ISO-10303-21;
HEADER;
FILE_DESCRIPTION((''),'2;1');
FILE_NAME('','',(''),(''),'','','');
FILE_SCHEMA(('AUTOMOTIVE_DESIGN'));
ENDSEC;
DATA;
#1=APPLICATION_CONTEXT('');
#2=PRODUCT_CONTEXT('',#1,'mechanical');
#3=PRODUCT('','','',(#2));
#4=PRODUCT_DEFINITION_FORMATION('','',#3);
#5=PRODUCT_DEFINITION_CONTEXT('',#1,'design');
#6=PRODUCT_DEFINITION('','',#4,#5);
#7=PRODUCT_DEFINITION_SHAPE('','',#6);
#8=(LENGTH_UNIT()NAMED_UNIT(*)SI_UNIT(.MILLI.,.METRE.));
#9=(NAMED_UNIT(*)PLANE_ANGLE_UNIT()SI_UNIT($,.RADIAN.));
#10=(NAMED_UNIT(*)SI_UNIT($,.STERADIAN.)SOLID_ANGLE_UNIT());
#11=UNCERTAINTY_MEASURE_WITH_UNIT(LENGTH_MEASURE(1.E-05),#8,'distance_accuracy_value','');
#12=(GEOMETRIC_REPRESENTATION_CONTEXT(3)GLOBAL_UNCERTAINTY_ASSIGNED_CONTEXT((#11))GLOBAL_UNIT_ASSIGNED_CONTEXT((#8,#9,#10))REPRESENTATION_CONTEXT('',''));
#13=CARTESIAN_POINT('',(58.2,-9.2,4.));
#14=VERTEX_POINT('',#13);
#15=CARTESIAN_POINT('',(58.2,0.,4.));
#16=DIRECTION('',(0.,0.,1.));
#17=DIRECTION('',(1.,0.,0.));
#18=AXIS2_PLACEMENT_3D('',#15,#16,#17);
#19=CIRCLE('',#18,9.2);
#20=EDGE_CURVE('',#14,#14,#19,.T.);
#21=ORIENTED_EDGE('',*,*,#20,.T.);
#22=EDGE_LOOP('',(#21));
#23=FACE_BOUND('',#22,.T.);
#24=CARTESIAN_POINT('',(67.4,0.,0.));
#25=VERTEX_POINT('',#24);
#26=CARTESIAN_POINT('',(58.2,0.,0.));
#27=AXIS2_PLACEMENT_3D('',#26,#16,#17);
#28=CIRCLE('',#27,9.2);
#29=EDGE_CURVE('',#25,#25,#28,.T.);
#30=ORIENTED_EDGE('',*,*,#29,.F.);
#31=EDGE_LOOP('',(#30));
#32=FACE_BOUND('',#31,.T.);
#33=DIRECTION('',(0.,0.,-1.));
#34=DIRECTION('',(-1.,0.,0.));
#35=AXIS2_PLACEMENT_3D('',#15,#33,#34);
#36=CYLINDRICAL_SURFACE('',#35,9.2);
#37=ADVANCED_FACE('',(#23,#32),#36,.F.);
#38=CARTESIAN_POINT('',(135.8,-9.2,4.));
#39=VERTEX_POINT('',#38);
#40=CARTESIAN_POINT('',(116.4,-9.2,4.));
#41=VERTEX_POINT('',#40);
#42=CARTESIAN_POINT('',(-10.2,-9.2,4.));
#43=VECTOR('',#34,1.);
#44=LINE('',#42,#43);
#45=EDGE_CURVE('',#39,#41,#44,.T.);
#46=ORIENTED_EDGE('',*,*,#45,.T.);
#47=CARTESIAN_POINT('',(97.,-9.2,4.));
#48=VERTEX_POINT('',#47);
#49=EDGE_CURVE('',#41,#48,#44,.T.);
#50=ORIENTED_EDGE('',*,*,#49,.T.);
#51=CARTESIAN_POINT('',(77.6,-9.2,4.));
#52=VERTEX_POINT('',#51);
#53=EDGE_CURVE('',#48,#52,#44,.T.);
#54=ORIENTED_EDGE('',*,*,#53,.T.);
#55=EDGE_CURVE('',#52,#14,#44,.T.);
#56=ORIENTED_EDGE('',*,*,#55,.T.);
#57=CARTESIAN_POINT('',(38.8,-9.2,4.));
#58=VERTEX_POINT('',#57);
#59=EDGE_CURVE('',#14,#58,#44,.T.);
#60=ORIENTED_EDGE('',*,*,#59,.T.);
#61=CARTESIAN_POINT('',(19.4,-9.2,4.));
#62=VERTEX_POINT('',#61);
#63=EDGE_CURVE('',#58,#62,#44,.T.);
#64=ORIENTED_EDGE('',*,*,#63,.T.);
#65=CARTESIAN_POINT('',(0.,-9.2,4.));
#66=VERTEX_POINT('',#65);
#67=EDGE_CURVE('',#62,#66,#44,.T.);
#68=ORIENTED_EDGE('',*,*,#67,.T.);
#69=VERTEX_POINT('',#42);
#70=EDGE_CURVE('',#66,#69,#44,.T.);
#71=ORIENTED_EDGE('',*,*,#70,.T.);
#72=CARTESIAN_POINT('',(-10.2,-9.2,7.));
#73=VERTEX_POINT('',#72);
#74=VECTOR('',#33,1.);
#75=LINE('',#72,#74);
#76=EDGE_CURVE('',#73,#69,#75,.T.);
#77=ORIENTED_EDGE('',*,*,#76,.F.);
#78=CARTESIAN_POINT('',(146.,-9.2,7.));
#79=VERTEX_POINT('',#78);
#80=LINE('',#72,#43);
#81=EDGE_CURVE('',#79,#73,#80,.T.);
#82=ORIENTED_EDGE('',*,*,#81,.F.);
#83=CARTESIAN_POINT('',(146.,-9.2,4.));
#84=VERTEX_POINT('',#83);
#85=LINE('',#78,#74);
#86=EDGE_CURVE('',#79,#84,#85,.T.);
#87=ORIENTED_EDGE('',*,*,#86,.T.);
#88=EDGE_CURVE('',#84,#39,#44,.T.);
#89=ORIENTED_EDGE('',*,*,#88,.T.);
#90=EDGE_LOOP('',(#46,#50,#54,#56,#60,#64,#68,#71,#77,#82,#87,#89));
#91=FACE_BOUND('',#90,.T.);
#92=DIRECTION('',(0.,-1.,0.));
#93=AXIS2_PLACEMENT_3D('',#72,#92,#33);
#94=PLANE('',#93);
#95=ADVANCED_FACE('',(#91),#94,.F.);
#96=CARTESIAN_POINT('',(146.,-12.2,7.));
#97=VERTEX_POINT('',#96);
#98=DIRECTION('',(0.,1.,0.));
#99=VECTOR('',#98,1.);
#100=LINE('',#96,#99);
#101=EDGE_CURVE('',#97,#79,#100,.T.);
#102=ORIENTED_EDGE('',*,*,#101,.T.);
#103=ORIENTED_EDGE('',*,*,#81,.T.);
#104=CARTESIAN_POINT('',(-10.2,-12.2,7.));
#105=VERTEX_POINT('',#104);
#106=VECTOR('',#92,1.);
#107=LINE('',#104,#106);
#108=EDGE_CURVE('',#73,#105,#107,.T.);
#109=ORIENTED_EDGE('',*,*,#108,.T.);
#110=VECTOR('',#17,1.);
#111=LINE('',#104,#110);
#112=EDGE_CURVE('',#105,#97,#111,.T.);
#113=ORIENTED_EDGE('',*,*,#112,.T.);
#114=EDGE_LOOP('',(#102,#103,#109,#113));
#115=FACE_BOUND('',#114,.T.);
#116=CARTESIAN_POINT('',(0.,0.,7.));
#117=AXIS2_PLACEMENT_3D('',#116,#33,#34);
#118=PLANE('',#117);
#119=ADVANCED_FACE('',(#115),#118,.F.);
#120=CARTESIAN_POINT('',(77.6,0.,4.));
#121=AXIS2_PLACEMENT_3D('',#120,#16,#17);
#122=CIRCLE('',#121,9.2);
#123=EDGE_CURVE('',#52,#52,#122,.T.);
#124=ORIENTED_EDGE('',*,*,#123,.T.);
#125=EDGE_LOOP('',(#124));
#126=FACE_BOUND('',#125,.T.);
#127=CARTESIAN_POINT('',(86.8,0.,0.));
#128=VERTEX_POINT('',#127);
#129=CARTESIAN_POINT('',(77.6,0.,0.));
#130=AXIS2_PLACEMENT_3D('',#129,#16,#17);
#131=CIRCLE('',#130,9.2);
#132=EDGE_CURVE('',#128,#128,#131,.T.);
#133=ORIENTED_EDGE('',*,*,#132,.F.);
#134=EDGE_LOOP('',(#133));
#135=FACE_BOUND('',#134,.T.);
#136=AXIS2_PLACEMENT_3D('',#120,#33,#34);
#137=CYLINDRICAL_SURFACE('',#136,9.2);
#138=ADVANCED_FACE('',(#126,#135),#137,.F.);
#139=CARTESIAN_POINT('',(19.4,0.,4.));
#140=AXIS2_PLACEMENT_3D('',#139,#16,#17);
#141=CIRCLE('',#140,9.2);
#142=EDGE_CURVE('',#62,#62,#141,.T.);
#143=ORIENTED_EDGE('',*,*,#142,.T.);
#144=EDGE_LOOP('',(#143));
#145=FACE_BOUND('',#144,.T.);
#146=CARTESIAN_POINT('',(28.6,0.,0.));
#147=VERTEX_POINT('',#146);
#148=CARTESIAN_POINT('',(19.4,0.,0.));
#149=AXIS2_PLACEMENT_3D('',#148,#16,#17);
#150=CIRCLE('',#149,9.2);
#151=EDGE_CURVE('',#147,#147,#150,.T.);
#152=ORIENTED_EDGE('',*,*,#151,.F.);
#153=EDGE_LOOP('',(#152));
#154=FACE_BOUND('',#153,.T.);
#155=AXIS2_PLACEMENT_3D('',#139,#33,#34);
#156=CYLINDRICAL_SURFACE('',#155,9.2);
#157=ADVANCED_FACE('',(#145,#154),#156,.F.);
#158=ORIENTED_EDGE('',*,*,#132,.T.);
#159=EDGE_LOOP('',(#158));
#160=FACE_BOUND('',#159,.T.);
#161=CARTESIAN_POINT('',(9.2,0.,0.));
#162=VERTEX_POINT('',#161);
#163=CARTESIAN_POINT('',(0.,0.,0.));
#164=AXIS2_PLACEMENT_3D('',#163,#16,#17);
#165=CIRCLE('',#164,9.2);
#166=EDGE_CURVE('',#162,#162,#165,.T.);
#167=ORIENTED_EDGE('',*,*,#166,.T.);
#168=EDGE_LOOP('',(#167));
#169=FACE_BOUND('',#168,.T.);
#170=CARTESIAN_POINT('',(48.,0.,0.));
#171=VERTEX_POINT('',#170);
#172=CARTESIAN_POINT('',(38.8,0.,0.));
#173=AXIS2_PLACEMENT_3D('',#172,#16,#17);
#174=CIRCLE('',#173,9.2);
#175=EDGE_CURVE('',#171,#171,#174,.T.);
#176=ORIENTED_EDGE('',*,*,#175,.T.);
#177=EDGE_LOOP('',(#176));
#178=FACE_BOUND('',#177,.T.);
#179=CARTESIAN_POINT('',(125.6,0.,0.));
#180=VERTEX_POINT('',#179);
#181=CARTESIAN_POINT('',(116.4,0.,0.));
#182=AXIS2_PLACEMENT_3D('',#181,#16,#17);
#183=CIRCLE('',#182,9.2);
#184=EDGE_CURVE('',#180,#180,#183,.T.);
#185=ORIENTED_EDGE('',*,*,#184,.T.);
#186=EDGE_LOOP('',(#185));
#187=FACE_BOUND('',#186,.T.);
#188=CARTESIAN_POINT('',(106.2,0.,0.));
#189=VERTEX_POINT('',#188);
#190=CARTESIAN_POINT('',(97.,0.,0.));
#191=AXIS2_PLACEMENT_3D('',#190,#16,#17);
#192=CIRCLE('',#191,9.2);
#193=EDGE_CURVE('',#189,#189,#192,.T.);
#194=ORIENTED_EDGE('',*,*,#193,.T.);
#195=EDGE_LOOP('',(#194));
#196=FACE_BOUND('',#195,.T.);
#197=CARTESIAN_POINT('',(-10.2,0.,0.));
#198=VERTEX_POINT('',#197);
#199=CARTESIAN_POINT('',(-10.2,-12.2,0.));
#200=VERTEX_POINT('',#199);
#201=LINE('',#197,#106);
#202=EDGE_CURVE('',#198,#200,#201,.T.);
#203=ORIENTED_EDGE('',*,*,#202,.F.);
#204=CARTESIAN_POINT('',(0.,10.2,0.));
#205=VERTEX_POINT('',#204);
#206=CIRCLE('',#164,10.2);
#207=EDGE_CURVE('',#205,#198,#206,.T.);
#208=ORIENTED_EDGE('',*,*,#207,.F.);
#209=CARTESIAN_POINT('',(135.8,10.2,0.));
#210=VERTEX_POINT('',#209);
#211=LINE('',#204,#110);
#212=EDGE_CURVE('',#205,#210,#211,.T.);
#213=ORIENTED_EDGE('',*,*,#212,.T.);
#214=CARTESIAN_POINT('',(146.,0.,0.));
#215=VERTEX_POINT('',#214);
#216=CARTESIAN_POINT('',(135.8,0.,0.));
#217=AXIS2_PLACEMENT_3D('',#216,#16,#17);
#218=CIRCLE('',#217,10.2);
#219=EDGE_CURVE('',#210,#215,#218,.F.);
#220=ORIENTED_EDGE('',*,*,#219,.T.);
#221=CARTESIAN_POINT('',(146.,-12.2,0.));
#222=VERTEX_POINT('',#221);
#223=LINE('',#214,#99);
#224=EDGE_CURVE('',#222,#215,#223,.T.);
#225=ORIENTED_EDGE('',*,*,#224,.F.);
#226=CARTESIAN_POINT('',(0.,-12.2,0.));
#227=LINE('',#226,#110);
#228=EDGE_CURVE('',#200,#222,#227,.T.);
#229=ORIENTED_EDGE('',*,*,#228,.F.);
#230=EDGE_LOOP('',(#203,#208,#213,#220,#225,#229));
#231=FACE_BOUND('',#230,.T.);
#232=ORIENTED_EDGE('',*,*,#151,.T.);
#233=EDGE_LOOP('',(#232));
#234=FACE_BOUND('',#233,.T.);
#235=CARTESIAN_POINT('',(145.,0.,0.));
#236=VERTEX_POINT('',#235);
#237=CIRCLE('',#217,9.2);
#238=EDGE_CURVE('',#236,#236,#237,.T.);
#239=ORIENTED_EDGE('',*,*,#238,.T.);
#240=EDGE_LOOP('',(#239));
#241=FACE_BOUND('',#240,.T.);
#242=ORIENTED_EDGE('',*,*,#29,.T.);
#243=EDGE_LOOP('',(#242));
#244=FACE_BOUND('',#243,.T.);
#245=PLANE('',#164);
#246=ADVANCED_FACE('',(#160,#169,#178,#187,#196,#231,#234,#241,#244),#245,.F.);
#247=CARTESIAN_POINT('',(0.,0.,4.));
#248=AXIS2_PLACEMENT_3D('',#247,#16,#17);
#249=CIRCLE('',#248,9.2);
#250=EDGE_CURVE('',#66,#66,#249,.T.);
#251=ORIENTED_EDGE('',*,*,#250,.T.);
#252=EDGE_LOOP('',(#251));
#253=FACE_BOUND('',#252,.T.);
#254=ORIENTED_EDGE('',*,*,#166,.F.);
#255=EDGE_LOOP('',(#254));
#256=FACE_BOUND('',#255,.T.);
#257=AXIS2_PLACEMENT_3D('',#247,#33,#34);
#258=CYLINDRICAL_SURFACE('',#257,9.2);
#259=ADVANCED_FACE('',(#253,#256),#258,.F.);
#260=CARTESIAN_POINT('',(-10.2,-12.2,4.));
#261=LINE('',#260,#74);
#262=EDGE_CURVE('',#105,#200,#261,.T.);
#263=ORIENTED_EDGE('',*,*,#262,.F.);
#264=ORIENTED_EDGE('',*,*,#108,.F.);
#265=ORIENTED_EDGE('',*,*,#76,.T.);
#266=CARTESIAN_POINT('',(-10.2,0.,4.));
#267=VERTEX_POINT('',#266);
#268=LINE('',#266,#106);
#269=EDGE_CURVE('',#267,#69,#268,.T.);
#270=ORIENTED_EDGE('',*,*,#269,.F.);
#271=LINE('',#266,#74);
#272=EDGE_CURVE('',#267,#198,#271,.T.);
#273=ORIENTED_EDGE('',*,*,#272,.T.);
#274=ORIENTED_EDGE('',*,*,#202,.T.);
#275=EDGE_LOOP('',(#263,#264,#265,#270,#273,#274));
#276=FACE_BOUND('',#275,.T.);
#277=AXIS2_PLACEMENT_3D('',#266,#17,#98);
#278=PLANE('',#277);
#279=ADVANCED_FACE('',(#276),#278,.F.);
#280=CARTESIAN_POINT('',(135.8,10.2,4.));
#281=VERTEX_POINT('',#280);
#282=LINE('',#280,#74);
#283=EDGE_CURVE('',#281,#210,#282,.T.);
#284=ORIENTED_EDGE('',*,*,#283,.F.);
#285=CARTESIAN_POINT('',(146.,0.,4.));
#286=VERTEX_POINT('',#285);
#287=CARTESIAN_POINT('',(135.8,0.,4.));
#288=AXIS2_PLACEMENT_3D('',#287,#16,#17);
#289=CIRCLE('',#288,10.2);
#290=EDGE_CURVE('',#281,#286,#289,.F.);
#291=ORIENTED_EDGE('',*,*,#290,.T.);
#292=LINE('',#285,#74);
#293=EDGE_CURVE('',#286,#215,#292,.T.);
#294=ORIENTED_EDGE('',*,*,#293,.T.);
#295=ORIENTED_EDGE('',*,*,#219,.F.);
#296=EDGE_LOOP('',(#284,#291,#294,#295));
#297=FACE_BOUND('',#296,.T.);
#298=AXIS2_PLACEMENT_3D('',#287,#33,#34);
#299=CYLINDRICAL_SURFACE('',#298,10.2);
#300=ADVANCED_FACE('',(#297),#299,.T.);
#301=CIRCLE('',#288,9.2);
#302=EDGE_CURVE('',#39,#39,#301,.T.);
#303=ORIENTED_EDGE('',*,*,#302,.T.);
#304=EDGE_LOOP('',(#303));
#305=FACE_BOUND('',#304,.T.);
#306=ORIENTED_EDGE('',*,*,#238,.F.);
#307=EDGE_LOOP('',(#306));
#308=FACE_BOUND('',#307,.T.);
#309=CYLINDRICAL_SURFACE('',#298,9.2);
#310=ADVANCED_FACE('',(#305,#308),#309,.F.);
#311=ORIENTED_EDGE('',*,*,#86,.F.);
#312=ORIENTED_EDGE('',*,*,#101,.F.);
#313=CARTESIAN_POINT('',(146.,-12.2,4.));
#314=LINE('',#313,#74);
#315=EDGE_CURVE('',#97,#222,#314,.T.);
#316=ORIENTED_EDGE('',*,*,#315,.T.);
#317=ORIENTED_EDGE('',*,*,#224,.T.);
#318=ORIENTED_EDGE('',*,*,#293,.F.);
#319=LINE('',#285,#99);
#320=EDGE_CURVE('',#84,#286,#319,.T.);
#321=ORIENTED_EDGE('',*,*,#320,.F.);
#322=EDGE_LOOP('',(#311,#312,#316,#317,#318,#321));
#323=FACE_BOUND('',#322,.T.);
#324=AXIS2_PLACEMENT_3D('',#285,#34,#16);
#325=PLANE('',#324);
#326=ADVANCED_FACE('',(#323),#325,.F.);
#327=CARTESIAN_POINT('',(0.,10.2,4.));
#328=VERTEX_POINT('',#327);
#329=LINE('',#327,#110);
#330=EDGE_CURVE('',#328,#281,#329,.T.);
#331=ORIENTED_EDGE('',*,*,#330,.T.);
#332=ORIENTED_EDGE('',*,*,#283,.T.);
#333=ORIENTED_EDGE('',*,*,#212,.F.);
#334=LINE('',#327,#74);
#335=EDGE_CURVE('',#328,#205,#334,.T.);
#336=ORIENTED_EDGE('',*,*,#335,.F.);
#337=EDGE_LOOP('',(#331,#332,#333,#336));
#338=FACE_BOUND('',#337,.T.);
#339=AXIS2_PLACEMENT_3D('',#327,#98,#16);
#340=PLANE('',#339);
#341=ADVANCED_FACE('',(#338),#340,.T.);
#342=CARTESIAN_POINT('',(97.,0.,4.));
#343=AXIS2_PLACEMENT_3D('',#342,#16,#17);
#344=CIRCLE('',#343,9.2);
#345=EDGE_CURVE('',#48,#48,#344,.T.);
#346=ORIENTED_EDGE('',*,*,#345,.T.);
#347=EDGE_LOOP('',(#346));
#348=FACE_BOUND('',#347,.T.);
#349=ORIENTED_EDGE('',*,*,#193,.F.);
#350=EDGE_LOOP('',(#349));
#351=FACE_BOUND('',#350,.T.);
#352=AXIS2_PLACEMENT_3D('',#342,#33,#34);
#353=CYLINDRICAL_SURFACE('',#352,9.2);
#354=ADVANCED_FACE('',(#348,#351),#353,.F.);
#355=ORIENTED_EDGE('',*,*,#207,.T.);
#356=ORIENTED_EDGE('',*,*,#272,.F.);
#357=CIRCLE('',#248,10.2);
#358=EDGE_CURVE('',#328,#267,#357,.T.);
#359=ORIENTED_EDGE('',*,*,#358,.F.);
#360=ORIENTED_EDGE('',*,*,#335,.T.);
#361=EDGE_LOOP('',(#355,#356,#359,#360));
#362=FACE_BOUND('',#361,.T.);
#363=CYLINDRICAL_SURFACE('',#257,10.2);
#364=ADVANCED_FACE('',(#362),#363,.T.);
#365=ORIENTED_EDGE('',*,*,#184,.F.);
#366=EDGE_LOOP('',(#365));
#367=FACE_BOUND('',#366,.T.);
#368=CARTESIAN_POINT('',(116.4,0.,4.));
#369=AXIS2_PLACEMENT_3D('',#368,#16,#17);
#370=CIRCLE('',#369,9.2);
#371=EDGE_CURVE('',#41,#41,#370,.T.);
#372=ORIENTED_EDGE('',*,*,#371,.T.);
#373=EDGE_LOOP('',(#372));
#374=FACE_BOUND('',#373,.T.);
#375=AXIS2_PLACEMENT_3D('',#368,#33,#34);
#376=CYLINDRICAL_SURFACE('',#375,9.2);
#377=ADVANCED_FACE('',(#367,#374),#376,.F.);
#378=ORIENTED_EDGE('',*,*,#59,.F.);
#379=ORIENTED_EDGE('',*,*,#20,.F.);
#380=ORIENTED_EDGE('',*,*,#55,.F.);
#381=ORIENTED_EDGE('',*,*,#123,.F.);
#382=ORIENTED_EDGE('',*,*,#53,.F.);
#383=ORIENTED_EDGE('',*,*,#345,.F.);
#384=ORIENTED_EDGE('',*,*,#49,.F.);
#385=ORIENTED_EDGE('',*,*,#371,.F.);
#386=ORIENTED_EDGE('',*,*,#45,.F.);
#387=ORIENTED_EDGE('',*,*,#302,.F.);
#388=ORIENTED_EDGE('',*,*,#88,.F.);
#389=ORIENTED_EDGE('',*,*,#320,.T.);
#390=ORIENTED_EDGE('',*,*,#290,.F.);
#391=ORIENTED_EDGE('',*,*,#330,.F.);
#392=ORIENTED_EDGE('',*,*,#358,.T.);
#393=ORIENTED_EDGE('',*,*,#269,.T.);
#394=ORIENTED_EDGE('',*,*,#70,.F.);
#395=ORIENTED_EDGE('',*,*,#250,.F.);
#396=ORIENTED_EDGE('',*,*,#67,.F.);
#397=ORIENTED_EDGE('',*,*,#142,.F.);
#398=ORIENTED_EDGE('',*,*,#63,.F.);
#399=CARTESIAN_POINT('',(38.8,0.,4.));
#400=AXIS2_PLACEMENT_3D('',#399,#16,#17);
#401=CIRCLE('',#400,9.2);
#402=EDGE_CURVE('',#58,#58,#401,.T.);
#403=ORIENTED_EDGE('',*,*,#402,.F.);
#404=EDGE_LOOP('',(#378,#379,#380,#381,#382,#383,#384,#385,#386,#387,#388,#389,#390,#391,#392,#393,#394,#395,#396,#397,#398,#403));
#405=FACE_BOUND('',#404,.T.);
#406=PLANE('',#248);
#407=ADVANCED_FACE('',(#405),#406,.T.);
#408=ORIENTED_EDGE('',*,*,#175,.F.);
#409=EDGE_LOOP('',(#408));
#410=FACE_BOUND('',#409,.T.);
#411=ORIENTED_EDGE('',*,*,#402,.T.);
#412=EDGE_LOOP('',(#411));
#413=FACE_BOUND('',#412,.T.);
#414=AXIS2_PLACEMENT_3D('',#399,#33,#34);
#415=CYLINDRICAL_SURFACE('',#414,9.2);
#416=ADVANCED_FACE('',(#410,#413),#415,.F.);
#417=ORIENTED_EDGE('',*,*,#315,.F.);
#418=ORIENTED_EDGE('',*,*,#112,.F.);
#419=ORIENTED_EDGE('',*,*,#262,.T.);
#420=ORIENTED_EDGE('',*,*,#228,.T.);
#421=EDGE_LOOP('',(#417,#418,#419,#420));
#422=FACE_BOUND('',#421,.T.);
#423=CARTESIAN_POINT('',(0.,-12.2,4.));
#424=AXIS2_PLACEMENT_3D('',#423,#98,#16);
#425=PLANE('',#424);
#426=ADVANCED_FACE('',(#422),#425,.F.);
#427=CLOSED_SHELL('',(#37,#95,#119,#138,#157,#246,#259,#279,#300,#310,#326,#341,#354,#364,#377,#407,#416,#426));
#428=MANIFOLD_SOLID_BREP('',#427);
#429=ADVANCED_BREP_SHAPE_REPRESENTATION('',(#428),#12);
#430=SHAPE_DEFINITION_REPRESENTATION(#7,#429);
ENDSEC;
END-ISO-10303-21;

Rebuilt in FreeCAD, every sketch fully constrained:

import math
import FreeCAD as App
import Part
import Sketcher
from FreeCAD import Vector
Q = App.Units.Quantity

doc = App.newDocument("Part")
body = doc.addObject("PartDesign::Body", "Body")

sketch1 = body.newObject("Sketcher::SketchObject", "Sketch")
sketch1.AttachmentSupport = (doc.getObject("XY_Plane"), [""])
sketch1.MapMode = "FlatFace"
sketch1.addGeometry([
    Part.LineSegment(Vector(136, 10, 0), Vector(0, 10, 0)),
    Part.ArcOfCircle(Part.Circle(Vector(0, 0, 0), Vector(0, 0, 1), 10), math.radians(90), math.radians(180)),
    Part.LineSegment(Vector(-10, 0, 0), Vector(-10, -12, 0)),
    Part.LineSegment(Vector(-10, -12, 0), Vector(146, -12, 0)),
    Part.LineSegment(Vector(146, -12, 0), Vector(146, 0, 0)),
    Part.ArcOfCircle(Part.Circle(Vector(136, 0, 0), Vector(0, 0, 1), 10), math.radians(0), math.radians(90)),
    Part.Circle(Vector(136, 0, 0), Vector(0, 0, 1), 9),
    Part.Circle(Vector(116, 0, 0), Vector(0, 0, 1), 9),
    Part.Circle(Vector(97, 0, 0), Vector(0, 0, 1), 9),
    Part.Circle(Vector(78, 0, 0), Vector(0, 0, 1), 9),
    Part.Circle(Vector(58, 0, 0), Vector(0, 0, 1), 9),
    Part.Circle(Vector(39, 0, 0), Vector(0, 0, 1), 9),
    Part.Circle(Vector(19, 0, 0), Vector(0, 0, 1), 9),
    Part.Circle(Vector(0, 0, 0), Vector(0, 0, 1), 9),
], False)
sketch1.addConstraint([
    Sketcher.Constraint("Tangent", 0, 2, 1, 1),
    Sketcher.Constraint("Tangent", 1, 2, 2, 1),
    Sketcher.Constraint("Coincident", 2, 2, 3, 1),
    Sketcher.Constraint("Coincident", 3, 2, 4, 1),
    Sketcher.Constraint("Tangent", 4, 2, 5, 1),
    Sketcher.Constraint("Tangent", 5, 2, 0, 1),
    Sketcher.Constraint("Horizontal", 0),
    Sketcher.Constraint("Vertical", 2),
    Sketcher.Constraint("Horizontal", 3),
    Sketcher.Constraint("Vertical", 4),
    Sketcher.Constraint("Coincident", 1, 3, -1, 1),
    Sketcher.Constraint("Coincident", 13, 3, -1, 1),
    Sketcher.Constraint("Coincident", 6, 3, 5, 3),
    Sketcher.Constraint("Equal", 1, 5),
    Sketcher.Constraint("Equal", 6, 7),
    Sketcher.Constraint("Equal", 7, 8),
    Sketcher.Constraint("Equal", 8, 9),
    Sketcher.Constraint("Equal", 9, 10),
    Sketcher.Constraint("Equal", 10, 11),
    Sketcher.Constraint("Equal", 11, 12),
    Sketcher.Constraint("Equal", 12, 13),
    Sketcher.Constraint("PointOnObject", 7, 3, -1),
    Sketcher.Constraint("PointOnObject", 8, 3, -1),
    Sketcher.Constraint("PointOnObject", 9, 3, -1),
    Sketcher.Constraint("PointOnObject", 10, 3, -1),
    Sketcher.Constraint("PointOnObject", 11, 3, -1),
    Sketcher.Constraint("PointOnObject", 12, 3, -1),
    Sketcher.Constraint("Diameter", 6, Q("18.4 mm")),
    Sketcher.Constraint("Radius", 1, Q("10.2 mm")),
    Sketcher.Constraint("DistanceX", 0, 2, 0, 1, Q("135.8 mm")),
    Sketcher.Constraint("DistanceY", 2, 2, 2, 1, Q("12.2 mm")),
    Sketcher.Constraint("DistanceX", -1, 1, 8, 3, Q("97 mm")),
    Sketcher.Constraint("DistanceX", 1, 2, 11, 3, Q("49 mm")),
    Sketcher.Constraint("DistanceX", -1, 1, 7, 3, Q("116.4 mm")),
    Sketcher.Constraint("DistanceX", -1, 1, 9, 3, Q("77.6 mm")),
    Sketcher.Constraint("DistanceX", -1, 1, 10, 3, Q("58.2 mm")),
    Sketcher.Constraint("DistanceX", -1, 1, 12, 3, Q("19.4 mm")),
])
pad1 = body.newObject("PartDesign::Pad", "Pad")
pad1.Profile = sketch1
pad1.Length = 4

sketch2 = body.newObject("Sketcher::SketchObject", "Sketch001")
sketch2.AttachmentSupport = (doc.getObject("XY_Plane"), [""])
sketch2.MapMode = "FlatFace"
sketch2.AttachmentOffset = App.Placement(Vector(0, 0, 4), App.Rotation())
sketch2.addGeometry([
    Part.LineSegment(Vector(-10.2, -9.2, 0), Vector(-10.2, -12.2, 0)),
    Part.LineSegment(Vector(-10.2, -12.2, 0), Vector(146, -12.2, 0)),
    Part.LineSegment(Vector(146, -12.2, 0), Vector(146, -9.2, 0)),
    Part.LineSegment(Vector(146, -9.2, 0), Vector(-10.2, -9.2, 0)),
], False)
sketch2.addConstraint([
    Sketcher.Constraint("Coincident", 0, 2, 1, 1),
    Sketcher.Constraint("Coincident", 1, 2, 2, 1),
    Sketcher.Constraint("Coincident", 2, 2, 3, 1),
    Sketcher.Constraint("Coincident", 3, 2, 0, 1),
    Sketcher.Constraint("Vertical", 0),
    Sketcher.Constraint("Horizontal", 1),
    Sketcher.Constraint("Vertical", 2),
    Sketcher.Constraint("Horizontal", 3),
    Sketcher.Constraint("DistanceY", 0, 2, 0, 1, Q("3 mm")),
    Sketcher.Constraint("DistanceX", 1, 1, 1, 2, Q("156.2 mm")),
    Sketcher.Constraint("DistanceX", -1, 1, 1, 2, Q("146 mm")),
    Sketcher.Constraint("DistanceY", 0, 2, -1, 1, Q("12.2 mm")),
])
pad2 = body.newObject("PartDesign::Pad", "Pad001")
pad2.Profile = sketch2
pad2.Length = 3

doc.recompute()
